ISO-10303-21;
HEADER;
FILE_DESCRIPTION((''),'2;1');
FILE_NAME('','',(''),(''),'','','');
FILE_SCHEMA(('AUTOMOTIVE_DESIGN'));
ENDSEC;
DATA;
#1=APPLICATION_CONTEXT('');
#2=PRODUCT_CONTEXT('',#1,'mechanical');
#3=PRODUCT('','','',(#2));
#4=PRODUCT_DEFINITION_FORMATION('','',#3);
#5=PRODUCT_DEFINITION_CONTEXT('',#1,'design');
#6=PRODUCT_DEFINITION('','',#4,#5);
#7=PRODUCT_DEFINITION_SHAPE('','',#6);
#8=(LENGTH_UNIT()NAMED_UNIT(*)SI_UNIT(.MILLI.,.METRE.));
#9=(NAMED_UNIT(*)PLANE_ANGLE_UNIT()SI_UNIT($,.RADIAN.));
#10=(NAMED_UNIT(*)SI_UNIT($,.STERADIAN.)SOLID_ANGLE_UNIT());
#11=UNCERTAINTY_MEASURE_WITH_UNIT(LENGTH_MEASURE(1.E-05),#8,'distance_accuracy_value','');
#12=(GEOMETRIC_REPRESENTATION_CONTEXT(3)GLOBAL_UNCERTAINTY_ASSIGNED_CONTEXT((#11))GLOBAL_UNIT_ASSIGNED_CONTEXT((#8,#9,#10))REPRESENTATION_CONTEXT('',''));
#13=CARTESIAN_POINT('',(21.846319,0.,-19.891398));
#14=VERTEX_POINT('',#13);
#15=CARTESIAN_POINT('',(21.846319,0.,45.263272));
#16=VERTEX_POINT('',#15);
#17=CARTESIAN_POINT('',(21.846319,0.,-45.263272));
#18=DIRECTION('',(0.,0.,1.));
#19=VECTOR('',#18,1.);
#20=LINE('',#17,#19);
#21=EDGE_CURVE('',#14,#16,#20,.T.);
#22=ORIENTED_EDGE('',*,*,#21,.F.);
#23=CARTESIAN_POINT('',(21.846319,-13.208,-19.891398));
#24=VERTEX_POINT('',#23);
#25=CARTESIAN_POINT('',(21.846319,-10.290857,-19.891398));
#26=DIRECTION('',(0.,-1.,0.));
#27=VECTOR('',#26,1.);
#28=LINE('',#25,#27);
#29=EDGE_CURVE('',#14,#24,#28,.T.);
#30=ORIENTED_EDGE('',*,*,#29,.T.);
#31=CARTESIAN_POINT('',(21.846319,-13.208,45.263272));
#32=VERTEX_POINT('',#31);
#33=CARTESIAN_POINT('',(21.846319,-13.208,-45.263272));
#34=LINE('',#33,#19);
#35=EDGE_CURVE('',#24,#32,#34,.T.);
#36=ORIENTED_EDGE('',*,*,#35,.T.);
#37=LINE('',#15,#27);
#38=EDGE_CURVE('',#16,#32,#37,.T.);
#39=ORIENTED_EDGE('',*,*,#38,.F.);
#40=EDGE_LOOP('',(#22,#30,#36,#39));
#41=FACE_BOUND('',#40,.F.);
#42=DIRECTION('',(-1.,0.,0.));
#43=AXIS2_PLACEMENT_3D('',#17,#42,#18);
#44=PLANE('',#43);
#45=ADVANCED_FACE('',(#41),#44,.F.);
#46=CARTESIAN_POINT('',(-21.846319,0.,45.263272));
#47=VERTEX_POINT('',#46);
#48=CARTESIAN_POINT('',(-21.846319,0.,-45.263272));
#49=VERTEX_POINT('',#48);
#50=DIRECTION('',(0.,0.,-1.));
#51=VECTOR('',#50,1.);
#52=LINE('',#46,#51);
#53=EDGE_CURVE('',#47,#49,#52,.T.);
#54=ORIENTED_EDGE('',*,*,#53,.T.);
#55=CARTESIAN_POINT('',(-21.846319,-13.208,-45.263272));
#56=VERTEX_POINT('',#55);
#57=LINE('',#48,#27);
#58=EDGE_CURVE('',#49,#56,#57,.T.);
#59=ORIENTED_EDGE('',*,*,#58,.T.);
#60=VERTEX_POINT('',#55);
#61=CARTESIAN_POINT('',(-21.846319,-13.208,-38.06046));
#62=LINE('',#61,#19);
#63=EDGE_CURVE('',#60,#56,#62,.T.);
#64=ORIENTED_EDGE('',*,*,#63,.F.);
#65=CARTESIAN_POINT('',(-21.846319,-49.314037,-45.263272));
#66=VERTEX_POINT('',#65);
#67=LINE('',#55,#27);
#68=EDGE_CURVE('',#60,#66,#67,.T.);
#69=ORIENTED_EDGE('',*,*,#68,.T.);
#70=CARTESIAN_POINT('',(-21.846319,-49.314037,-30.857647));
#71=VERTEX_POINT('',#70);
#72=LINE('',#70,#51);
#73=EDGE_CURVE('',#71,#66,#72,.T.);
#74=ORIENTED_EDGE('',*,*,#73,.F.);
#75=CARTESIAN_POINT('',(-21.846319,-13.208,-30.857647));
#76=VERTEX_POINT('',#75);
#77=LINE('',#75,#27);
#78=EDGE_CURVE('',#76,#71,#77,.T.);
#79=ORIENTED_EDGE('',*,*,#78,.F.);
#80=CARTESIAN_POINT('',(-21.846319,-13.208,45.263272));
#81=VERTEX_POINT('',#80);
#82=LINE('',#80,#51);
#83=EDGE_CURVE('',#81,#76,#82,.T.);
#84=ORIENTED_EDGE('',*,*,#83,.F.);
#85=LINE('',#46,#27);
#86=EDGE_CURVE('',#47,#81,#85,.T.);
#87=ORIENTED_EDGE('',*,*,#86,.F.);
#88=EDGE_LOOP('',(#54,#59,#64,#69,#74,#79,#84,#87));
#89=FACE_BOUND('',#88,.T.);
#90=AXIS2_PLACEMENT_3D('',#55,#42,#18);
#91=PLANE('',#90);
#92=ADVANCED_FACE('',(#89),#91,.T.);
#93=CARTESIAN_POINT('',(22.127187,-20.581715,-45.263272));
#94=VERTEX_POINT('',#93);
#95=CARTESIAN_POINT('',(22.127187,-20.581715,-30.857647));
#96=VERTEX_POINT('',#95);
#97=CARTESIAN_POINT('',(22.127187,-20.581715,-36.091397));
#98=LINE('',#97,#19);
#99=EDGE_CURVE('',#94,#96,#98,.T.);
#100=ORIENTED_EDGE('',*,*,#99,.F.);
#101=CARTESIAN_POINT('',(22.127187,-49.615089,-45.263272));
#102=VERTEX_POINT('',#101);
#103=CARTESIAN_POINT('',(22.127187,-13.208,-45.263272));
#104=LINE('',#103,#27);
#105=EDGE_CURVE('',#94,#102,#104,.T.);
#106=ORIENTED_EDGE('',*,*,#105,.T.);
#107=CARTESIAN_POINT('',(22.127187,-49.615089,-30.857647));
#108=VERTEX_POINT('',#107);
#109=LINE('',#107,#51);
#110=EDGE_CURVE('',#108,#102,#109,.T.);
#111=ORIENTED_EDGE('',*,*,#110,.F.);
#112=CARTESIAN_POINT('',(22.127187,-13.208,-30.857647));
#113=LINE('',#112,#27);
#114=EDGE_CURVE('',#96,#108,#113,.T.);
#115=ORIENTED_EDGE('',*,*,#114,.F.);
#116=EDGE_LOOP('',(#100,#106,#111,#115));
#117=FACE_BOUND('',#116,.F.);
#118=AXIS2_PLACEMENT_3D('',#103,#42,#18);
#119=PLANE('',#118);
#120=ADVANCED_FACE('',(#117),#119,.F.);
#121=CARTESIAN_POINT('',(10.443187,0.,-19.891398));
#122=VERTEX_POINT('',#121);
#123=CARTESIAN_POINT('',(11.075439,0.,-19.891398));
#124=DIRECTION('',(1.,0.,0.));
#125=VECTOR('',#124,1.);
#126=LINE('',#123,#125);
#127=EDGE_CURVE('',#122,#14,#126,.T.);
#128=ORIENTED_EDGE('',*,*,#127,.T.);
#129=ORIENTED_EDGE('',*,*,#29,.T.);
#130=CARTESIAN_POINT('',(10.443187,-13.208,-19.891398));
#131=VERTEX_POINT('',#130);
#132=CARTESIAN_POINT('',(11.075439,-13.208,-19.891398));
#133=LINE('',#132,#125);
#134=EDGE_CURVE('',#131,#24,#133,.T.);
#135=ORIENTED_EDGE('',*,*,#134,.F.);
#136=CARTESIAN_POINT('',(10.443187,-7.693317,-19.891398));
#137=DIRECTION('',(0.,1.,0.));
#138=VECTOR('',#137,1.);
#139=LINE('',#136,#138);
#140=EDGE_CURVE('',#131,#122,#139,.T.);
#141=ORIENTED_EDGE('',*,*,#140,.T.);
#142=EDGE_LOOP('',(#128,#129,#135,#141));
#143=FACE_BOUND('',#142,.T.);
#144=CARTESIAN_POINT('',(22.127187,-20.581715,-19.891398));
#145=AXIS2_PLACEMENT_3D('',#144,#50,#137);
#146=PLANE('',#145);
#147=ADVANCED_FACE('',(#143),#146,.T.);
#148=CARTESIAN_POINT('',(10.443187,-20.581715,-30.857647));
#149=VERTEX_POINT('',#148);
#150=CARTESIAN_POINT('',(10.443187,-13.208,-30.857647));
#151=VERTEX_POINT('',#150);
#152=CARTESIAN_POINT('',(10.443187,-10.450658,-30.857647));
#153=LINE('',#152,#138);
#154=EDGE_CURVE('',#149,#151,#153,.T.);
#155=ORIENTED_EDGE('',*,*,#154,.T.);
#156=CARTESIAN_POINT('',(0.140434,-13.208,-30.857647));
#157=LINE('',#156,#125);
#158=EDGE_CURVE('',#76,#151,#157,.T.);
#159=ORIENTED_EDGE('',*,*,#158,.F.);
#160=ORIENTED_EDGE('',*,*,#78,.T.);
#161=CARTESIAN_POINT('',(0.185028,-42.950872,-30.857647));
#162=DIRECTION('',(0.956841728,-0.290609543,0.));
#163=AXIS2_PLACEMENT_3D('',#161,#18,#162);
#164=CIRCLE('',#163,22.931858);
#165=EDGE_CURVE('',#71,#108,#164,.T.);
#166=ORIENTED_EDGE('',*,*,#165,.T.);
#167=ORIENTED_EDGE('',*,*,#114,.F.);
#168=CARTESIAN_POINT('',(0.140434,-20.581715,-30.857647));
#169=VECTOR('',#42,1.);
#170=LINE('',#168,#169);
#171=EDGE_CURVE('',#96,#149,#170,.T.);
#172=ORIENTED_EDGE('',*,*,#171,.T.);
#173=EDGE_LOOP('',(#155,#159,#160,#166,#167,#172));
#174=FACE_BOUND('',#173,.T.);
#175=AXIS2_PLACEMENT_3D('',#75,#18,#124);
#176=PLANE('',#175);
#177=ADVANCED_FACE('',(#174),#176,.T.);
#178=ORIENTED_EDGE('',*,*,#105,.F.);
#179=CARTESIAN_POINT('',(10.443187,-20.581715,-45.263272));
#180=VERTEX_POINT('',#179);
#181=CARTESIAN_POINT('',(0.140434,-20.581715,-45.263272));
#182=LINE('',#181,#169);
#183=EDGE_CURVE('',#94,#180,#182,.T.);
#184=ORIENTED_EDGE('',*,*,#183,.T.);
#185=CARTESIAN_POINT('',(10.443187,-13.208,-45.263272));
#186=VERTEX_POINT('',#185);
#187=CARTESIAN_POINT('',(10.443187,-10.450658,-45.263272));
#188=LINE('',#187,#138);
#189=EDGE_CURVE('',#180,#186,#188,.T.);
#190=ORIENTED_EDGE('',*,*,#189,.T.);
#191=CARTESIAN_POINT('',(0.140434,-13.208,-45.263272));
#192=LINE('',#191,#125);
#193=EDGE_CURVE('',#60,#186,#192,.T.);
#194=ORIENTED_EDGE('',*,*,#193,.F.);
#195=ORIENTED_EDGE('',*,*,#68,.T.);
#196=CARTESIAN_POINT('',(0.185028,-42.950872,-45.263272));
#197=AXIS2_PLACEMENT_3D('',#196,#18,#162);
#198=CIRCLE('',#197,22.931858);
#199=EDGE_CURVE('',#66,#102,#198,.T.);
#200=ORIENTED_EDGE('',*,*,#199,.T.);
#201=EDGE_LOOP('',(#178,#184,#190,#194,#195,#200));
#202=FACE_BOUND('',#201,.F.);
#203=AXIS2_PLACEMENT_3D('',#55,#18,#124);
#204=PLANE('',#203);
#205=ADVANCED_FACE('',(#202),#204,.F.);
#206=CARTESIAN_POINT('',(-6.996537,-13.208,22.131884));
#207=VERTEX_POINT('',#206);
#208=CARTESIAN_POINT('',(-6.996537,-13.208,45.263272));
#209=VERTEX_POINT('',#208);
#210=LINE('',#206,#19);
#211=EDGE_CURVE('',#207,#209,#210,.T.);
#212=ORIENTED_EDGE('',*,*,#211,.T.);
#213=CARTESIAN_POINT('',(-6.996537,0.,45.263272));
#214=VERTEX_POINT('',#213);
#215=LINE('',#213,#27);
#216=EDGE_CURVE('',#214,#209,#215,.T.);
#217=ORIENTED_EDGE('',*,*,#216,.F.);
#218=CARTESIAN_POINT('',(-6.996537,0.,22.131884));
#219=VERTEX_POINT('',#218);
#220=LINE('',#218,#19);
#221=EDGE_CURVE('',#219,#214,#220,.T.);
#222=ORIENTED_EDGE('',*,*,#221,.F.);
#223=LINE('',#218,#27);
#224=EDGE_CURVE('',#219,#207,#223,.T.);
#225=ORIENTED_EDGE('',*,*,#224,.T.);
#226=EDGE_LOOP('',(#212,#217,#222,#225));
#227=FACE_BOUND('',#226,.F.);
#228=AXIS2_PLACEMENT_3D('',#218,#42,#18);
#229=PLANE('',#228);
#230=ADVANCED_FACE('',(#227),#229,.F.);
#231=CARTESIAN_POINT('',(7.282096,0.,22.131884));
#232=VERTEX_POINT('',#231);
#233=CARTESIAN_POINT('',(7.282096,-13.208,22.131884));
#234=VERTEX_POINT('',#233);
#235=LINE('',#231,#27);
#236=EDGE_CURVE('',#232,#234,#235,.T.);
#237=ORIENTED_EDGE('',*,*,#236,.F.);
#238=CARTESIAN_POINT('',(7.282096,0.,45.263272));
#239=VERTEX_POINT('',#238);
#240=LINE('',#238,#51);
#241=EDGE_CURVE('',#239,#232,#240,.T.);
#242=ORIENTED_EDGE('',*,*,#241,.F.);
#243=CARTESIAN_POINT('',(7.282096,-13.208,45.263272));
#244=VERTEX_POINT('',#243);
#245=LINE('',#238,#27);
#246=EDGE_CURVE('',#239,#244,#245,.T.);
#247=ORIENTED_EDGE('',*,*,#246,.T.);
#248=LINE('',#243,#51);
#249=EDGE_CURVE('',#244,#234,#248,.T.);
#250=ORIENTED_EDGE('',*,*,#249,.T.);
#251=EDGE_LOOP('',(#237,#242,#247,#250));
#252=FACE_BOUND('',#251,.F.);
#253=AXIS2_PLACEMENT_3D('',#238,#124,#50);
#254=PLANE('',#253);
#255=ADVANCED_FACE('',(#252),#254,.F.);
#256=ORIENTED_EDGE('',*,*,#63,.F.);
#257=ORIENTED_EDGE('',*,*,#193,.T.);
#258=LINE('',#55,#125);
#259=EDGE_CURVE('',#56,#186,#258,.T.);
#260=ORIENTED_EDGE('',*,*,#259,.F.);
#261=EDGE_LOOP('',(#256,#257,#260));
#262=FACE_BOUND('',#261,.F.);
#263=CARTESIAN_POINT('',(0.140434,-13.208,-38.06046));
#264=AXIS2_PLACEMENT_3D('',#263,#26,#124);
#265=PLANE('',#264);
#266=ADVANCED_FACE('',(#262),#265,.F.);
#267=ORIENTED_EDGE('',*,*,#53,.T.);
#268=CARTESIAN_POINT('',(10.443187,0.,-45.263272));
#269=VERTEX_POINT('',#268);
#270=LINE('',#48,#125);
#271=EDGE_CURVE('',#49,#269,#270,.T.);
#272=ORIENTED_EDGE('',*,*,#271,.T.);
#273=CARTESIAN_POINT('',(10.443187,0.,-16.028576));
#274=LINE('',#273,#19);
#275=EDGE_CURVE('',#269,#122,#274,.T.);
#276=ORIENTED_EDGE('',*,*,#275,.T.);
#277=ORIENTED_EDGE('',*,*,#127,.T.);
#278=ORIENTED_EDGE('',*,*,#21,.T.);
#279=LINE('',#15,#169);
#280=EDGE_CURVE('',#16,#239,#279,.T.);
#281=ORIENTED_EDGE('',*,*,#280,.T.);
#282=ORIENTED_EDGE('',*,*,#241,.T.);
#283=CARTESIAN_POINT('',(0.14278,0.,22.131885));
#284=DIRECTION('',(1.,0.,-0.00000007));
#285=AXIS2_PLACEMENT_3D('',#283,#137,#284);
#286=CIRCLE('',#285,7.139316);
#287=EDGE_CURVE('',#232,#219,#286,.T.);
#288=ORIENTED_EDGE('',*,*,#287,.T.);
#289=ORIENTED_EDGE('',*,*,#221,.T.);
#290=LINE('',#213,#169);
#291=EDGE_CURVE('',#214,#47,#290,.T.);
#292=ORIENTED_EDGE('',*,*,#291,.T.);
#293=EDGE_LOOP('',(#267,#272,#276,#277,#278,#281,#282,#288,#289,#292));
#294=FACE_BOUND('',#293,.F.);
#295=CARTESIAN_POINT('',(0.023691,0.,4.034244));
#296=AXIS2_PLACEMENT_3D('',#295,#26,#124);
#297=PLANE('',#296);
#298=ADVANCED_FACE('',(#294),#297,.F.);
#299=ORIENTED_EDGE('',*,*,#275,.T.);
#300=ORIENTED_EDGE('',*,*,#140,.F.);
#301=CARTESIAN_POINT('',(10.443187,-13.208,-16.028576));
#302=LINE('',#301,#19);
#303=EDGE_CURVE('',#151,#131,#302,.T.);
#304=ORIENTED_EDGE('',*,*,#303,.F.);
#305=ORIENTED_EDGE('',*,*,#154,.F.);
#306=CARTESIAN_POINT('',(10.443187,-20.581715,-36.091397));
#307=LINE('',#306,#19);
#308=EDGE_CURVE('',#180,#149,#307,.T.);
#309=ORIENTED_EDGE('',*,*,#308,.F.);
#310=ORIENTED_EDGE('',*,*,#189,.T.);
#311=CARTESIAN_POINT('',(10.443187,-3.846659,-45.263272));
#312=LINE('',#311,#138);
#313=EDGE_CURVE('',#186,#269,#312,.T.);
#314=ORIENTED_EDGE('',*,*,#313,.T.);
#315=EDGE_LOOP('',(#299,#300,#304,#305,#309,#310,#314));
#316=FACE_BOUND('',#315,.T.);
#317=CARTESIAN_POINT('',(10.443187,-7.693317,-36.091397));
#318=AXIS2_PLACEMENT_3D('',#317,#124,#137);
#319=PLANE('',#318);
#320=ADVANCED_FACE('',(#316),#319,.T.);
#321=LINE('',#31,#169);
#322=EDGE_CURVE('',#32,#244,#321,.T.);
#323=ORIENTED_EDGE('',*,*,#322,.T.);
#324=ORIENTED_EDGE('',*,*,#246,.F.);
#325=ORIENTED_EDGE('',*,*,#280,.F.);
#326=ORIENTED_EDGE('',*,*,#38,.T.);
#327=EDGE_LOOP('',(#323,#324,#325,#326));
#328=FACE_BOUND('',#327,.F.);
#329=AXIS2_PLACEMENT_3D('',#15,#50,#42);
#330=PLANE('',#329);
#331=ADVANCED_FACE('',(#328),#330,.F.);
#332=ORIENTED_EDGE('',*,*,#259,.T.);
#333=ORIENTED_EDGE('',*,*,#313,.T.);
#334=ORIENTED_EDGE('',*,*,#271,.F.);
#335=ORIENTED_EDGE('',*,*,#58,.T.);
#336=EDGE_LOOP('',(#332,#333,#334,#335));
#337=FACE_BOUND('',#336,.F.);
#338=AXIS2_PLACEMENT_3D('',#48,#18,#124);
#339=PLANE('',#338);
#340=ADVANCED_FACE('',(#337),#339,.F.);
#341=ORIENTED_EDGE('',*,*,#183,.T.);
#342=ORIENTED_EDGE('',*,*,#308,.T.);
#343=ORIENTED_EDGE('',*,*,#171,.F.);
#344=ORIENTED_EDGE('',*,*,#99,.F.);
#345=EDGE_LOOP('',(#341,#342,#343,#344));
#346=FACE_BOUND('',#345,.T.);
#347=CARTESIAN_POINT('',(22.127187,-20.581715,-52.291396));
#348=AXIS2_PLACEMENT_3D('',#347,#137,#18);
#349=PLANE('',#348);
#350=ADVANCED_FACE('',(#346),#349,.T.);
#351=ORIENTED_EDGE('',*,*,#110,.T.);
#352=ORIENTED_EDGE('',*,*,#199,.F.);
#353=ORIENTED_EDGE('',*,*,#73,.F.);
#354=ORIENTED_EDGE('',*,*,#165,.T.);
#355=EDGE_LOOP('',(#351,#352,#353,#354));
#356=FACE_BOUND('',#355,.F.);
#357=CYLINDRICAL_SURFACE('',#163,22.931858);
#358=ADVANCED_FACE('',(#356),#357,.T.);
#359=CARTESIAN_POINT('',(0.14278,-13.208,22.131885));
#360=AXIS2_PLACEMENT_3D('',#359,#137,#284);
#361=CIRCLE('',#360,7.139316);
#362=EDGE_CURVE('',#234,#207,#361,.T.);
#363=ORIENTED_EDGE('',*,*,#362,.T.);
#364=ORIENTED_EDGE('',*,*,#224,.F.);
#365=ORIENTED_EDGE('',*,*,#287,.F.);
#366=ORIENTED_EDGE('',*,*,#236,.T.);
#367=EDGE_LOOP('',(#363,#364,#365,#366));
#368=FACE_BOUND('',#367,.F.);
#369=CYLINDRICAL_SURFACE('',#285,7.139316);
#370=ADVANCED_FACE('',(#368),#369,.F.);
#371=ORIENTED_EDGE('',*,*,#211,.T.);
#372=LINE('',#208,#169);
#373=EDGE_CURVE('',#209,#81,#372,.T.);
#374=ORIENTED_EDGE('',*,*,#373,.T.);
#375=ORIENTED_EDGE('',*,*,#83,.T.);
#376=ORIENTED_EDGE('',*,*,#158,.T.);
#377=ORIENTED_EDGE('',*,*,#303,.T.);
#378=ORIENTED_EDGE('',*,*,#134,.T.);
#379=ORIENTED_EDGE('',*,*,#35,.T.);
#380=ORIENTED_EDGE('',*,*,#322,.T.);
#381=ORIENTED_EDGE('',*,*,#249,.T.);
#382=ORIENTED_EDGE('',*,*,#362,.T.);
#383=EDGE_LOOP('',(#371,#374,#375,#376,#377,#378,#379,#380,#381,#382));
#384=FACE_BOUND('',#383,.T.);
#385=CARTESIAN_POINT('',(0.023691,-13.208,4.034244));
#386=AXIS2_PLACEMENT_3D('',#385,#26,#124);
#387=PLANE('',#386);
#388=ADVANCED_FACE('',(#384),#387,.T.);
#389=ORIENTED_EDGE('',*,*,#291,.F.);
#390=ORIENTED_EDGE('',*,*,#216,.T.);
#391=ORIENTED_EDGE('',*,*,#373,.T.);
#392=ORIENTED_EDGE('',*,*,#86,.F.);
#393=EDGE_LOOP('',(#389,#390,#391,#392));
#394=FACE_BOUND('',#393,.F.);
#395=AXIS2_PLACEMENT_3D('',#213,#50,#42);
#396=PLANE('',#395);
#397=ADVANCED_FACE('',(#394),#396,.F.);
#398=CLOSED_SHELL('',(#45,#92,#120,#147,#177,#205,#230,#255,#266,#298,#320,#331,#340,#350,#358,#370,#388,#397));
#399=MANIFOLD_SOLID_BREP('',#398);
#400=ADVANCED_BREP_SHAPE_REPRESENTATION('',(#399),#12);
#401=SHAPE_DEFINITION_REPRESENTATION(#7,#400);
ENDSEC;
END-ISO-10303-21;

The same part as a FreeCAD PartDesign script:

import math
import FreeCAD as App
import Part
import Sketcher
Q = App.Units.Quantity


def add_polygon(sketch, points):
    """Adds a closed chain of lines whose ends are joined by coincident constraints."""
    first, n = sketch.GeometryCount, len(points)
    for a, b in zip(points, points[1:] + points[:1]):
        sketch.addGeometry(Part.LineSegment(App.Vector(*a, 0), App.Vector(*b, 0)), False)
    for i in range(n):
        sketch.addConstraint(Sketcher.Constraint("Coincident", first + i, 2, first + (i + 1) % n, 1))

doc = App.newDocument("Part")
params = doc.addObject("Spreadsheet::Sheet", "Params")
for row, (alias, value) in enumerate([
    ("pad1_length", "0.52 in"),
    ("pad2_length", "2.12 in"),
    ("pocket1_length", "1 in"),
    ("pocket2_length", "0.46 in"),
], start=1):
    params.set(f"A{row}", alias)
    params.set(f"B{row}", "=" + value)
    params.setAlias(f"B{row}", alias)

body = doc.addObject("PartDesign::Body", "Body")

sketch1 = body.newObject("Sketcher::SketchObject", "Sketch")
sketch1.AttachmentSupport = (doc.getObject("XZ_Plane"), [""])
sketch1.MapMode = "FlatFace"
sketch1.addGeometry([
    Part.LineSegment(App.Vector(-7, 45, 0), App.Vector(-22, 45, 0)),
    Part.LineSegment(App.Vector(-22, 45, 0), App.Vector(-22, -45, 0)),
    Part.LineSegment(App.Vector(-22, -45, 0), App.Vector(22, -45, 0)),
    Part.LineSegment(App.Vector(22, -45, 0), App.Vector(22, 45, 0)),
    Part.LineSegment(App.Vector(22, 45, 0), App.Vector(7, 45, 0)),
    Part.LineSegment(App.Vector(7, 45, 0), App.Vector(7, 22, 0)),
    Part.ArcOfCircle(Part.Circle(App.Vector(0, 22, 0), App.Vector(0, 0, 1), 7), math.radians(-180), math.radians(0)),
    Part.LineSegment(App.Vector(-7, 22, 0), App.Vector(-7, 45, 0)),
], False)
sketch1.addConstraint([
    Sketcher.Constraint("Coincident", 0, 2, 1, 1),
    Sketcher.Constraint("Coincident", 1, 2, 2, 1),
    Sketcher.Constraint("Coincident", 2, 2, 3, 1),
    Sketcher.Constraint("Coincident", 3, 2, 4, 1),
    Sketcher.Constraint("Coincident", 4, 2, 5, 1),
    Sketcher.Constraint("Tangent", 5, 2, 6, 2),
    Sketcher.Constraint("Tangent", 6, 1, 7, 1),
    Sketcher.Constraint("Coincident", 7, 2, 0, 1),
    Sketcher.Constraint("Horizontal", 0),
    Sketcher.Constraint("Vertical", 1),
    Sketcher.Constraint("Horizontal", 2),
    Sketcher.Constraint("Vertical", 3),
    Sketcher.Constraint("Horizontal", 4),
    Sketcher.Constraint("Vertical", 5),
    Sketcher.Constraint("Vertical", 7),
    Sketcher.Constraint("Symmetric", 0, 2, 2, 2, -1, 1),
    Sketcher.Constraint("Horizontal", 0, 2, 3, 2),
    Sketcher.Constraint("Radius", 6, Q("7.139316 mm")),
    Sketcher.Constraint("DistanceX", 2, 1, 2, 2, Q("43.692638 mm")),
    Sketcher.Constraint("DistanceY", 5, 2, 5, 1, Q("23.131388 mm")),
    Sketcher.Constraint("DistanceX", 0, 2, 6, 3, Q("21.989099 mm")),
    Sketcher.Constraint("DistanceY", 1, 2, 1, 1, Q("90.526544 mm")),
])
pad1 = body.newObject("PartDesign::Pad", "Pad")
pad1.Profile = sketch1
pad1.setExpression("Length", "Params.pad1_length")

sketch2 = body.newObject("Sketcher::SketchObject", "Sketch001")
sketch2.AttachmentSupport = (doc.getObject("XZ_Plane"), [""])
sketch2.MapMode = "FlatFace"
sketch2.AttachmentOffset = App.Placement(App.Vector(0, 0, 0.52 * 25.4), App.Rotation())
add_polygon(sketch2, [(-22, -31), (-22, -45), (22, -45), (22, -31)])
sketch2.addConstraint([
    Sketcher.Constraint("Vertical", 0),
    Sketcher.Constraint("Horizontal", 1),
    Sketcher.Constraint("Vertical", 2),
    Sketcher.Constraint("Horizontal", 3),
    Sketcher.Constraint("DistanceX", 1, 1, 1, 2, Q("43.973506 mm")),
    Sketcher.Constraint("DistanceY", 0, 2, 0, 1, Q("14.405625 mm")),
    Sketcher.Constraint("DistanceX", 0, 2, -1, 1, Q("21.846319 mm")),
    Sketcher.Constraint("DistanceY", 0, 2, -1, 1, Q("45.263272 mm")),
])
pad2 = body.newObject("PartDesign::Pad", "Pad001")
pad2.Profile = sketch2
pad2.setExpression("Length", "Params.pad2_length")

sketch3 = body.newObject("Sketcher::SketchObject", "Sketch002")
sketch3.AttachmentSupport = (doc.getObject("XY_Plane"), [""])
sketch3.MapMode = "FlatFace"
sketch3.AttachmentOffset = App.Placement(App.Vector(0, 0, -30.857647), App.Rotation())
sketch3.addGeometry([
    Part.ArcOfCircle(Part.Circle(App.Vector(0, -43, 0), App.Vector(0, 0, 1), 23), math.radians(-164), math.radians(-17)),
    Part.LineSegment(App.Vector(-22, -49, 0), App.Vector(-22, -67, 0)),
    Part.LineSegment(App.Vector(-22, -67, 0), App.Vector(22, -67, 0)),
    Part.LineSegment(App.Vector(22, -67, 0), App.Vector(22, -50, 0)),
], False)
sketch3.addConstraint([
    Sketcher.Constraint("Coincident", 0, 1, 1, 1),
    Sketcher.Constraint("Coincident", 1, 2, 2, 1),
    Sketcher.Constraint("Coincident", 2, 2, 3, 1),
    Sketcher.Constraint("Coincident", 3, 2, 0, 2),
    Sketcher.Constraint("Vertical", 1),
    Sketcher.Constraint("Horizontal", 2),
    Sketcher.Constraint("Vertical", 3),
    Sketcher.Constraint("DistanceY", 1, 2, -1, 1, Q("2.64 in")),
    Sketcher.Constraint("Radius", 0, Q("22.931858 mm")),
    Sketcher.Constraint("DistanceY", 3, 1, 3, 2, Q("17.440911 mm")),
    Sketcher.Constraint("DistanceX", 2, 1, 2, 2, Q("43.973506 mm")),
    Sketcher.Constraint("DistanceY", 1, 2, 1, 1, Q("17.741963 mm")),
    Sketcher.Constraint("DistanceX", -1, 1, 0, 3, Q("0.185028 mm")),
])
pocket1 = body.newObject("PartDesign::Pocket", "Pocket")
pocket1.Profile = sketch3
pocket1.setExpression("Length", "Params.pocket1_length")

sketch4 = body.newObject("Sketcher::SketchObject", "Sketch003")
sketch4.AttachmentSupport = (doc.getObject("YZ_Plane"), [""])
sketch4.MapMode = "FlatFace"
sketch4.AttachmentOffset = App.Placement(App.Vector(0, 0, 22.127187), App.Rotation())
add_polygon(sketch4, [(-21, -20), (-21, -52), (5, -52), (5, -20)])
sketch4.addConstraint([
    Sketcher.Constraint("Vertical", 0),
    Sketcher.Constraint("Horizontal", 1),
    Sketcher.Constraint("Vertical", 2),
    Sketcher.Constraint("Horizontal", 3),
    Sketcher.Constraint("DistanceY", 0, 2, 0, 1, Q("32.399999 mm")),
    Sketcher.Constraint("DistanceX", 1, 1, 1, 2, Q("25.776795 mm")),
    Sketcher.Constraint("DistanceX", -1, 1, 1, 2, Q("5.195081 mm")),
    Sketcher.Constraint("DistanceY", 0, 2, -1, 1, Q("52.291396 mm")),
])
pocket2 = body.newObject("PartDesign::Pocket", "Pocket001")
pocket2.Profile = sketch4
pocket2.setExpression("Length", "Params.pocket2_length")

doc.recompute()
